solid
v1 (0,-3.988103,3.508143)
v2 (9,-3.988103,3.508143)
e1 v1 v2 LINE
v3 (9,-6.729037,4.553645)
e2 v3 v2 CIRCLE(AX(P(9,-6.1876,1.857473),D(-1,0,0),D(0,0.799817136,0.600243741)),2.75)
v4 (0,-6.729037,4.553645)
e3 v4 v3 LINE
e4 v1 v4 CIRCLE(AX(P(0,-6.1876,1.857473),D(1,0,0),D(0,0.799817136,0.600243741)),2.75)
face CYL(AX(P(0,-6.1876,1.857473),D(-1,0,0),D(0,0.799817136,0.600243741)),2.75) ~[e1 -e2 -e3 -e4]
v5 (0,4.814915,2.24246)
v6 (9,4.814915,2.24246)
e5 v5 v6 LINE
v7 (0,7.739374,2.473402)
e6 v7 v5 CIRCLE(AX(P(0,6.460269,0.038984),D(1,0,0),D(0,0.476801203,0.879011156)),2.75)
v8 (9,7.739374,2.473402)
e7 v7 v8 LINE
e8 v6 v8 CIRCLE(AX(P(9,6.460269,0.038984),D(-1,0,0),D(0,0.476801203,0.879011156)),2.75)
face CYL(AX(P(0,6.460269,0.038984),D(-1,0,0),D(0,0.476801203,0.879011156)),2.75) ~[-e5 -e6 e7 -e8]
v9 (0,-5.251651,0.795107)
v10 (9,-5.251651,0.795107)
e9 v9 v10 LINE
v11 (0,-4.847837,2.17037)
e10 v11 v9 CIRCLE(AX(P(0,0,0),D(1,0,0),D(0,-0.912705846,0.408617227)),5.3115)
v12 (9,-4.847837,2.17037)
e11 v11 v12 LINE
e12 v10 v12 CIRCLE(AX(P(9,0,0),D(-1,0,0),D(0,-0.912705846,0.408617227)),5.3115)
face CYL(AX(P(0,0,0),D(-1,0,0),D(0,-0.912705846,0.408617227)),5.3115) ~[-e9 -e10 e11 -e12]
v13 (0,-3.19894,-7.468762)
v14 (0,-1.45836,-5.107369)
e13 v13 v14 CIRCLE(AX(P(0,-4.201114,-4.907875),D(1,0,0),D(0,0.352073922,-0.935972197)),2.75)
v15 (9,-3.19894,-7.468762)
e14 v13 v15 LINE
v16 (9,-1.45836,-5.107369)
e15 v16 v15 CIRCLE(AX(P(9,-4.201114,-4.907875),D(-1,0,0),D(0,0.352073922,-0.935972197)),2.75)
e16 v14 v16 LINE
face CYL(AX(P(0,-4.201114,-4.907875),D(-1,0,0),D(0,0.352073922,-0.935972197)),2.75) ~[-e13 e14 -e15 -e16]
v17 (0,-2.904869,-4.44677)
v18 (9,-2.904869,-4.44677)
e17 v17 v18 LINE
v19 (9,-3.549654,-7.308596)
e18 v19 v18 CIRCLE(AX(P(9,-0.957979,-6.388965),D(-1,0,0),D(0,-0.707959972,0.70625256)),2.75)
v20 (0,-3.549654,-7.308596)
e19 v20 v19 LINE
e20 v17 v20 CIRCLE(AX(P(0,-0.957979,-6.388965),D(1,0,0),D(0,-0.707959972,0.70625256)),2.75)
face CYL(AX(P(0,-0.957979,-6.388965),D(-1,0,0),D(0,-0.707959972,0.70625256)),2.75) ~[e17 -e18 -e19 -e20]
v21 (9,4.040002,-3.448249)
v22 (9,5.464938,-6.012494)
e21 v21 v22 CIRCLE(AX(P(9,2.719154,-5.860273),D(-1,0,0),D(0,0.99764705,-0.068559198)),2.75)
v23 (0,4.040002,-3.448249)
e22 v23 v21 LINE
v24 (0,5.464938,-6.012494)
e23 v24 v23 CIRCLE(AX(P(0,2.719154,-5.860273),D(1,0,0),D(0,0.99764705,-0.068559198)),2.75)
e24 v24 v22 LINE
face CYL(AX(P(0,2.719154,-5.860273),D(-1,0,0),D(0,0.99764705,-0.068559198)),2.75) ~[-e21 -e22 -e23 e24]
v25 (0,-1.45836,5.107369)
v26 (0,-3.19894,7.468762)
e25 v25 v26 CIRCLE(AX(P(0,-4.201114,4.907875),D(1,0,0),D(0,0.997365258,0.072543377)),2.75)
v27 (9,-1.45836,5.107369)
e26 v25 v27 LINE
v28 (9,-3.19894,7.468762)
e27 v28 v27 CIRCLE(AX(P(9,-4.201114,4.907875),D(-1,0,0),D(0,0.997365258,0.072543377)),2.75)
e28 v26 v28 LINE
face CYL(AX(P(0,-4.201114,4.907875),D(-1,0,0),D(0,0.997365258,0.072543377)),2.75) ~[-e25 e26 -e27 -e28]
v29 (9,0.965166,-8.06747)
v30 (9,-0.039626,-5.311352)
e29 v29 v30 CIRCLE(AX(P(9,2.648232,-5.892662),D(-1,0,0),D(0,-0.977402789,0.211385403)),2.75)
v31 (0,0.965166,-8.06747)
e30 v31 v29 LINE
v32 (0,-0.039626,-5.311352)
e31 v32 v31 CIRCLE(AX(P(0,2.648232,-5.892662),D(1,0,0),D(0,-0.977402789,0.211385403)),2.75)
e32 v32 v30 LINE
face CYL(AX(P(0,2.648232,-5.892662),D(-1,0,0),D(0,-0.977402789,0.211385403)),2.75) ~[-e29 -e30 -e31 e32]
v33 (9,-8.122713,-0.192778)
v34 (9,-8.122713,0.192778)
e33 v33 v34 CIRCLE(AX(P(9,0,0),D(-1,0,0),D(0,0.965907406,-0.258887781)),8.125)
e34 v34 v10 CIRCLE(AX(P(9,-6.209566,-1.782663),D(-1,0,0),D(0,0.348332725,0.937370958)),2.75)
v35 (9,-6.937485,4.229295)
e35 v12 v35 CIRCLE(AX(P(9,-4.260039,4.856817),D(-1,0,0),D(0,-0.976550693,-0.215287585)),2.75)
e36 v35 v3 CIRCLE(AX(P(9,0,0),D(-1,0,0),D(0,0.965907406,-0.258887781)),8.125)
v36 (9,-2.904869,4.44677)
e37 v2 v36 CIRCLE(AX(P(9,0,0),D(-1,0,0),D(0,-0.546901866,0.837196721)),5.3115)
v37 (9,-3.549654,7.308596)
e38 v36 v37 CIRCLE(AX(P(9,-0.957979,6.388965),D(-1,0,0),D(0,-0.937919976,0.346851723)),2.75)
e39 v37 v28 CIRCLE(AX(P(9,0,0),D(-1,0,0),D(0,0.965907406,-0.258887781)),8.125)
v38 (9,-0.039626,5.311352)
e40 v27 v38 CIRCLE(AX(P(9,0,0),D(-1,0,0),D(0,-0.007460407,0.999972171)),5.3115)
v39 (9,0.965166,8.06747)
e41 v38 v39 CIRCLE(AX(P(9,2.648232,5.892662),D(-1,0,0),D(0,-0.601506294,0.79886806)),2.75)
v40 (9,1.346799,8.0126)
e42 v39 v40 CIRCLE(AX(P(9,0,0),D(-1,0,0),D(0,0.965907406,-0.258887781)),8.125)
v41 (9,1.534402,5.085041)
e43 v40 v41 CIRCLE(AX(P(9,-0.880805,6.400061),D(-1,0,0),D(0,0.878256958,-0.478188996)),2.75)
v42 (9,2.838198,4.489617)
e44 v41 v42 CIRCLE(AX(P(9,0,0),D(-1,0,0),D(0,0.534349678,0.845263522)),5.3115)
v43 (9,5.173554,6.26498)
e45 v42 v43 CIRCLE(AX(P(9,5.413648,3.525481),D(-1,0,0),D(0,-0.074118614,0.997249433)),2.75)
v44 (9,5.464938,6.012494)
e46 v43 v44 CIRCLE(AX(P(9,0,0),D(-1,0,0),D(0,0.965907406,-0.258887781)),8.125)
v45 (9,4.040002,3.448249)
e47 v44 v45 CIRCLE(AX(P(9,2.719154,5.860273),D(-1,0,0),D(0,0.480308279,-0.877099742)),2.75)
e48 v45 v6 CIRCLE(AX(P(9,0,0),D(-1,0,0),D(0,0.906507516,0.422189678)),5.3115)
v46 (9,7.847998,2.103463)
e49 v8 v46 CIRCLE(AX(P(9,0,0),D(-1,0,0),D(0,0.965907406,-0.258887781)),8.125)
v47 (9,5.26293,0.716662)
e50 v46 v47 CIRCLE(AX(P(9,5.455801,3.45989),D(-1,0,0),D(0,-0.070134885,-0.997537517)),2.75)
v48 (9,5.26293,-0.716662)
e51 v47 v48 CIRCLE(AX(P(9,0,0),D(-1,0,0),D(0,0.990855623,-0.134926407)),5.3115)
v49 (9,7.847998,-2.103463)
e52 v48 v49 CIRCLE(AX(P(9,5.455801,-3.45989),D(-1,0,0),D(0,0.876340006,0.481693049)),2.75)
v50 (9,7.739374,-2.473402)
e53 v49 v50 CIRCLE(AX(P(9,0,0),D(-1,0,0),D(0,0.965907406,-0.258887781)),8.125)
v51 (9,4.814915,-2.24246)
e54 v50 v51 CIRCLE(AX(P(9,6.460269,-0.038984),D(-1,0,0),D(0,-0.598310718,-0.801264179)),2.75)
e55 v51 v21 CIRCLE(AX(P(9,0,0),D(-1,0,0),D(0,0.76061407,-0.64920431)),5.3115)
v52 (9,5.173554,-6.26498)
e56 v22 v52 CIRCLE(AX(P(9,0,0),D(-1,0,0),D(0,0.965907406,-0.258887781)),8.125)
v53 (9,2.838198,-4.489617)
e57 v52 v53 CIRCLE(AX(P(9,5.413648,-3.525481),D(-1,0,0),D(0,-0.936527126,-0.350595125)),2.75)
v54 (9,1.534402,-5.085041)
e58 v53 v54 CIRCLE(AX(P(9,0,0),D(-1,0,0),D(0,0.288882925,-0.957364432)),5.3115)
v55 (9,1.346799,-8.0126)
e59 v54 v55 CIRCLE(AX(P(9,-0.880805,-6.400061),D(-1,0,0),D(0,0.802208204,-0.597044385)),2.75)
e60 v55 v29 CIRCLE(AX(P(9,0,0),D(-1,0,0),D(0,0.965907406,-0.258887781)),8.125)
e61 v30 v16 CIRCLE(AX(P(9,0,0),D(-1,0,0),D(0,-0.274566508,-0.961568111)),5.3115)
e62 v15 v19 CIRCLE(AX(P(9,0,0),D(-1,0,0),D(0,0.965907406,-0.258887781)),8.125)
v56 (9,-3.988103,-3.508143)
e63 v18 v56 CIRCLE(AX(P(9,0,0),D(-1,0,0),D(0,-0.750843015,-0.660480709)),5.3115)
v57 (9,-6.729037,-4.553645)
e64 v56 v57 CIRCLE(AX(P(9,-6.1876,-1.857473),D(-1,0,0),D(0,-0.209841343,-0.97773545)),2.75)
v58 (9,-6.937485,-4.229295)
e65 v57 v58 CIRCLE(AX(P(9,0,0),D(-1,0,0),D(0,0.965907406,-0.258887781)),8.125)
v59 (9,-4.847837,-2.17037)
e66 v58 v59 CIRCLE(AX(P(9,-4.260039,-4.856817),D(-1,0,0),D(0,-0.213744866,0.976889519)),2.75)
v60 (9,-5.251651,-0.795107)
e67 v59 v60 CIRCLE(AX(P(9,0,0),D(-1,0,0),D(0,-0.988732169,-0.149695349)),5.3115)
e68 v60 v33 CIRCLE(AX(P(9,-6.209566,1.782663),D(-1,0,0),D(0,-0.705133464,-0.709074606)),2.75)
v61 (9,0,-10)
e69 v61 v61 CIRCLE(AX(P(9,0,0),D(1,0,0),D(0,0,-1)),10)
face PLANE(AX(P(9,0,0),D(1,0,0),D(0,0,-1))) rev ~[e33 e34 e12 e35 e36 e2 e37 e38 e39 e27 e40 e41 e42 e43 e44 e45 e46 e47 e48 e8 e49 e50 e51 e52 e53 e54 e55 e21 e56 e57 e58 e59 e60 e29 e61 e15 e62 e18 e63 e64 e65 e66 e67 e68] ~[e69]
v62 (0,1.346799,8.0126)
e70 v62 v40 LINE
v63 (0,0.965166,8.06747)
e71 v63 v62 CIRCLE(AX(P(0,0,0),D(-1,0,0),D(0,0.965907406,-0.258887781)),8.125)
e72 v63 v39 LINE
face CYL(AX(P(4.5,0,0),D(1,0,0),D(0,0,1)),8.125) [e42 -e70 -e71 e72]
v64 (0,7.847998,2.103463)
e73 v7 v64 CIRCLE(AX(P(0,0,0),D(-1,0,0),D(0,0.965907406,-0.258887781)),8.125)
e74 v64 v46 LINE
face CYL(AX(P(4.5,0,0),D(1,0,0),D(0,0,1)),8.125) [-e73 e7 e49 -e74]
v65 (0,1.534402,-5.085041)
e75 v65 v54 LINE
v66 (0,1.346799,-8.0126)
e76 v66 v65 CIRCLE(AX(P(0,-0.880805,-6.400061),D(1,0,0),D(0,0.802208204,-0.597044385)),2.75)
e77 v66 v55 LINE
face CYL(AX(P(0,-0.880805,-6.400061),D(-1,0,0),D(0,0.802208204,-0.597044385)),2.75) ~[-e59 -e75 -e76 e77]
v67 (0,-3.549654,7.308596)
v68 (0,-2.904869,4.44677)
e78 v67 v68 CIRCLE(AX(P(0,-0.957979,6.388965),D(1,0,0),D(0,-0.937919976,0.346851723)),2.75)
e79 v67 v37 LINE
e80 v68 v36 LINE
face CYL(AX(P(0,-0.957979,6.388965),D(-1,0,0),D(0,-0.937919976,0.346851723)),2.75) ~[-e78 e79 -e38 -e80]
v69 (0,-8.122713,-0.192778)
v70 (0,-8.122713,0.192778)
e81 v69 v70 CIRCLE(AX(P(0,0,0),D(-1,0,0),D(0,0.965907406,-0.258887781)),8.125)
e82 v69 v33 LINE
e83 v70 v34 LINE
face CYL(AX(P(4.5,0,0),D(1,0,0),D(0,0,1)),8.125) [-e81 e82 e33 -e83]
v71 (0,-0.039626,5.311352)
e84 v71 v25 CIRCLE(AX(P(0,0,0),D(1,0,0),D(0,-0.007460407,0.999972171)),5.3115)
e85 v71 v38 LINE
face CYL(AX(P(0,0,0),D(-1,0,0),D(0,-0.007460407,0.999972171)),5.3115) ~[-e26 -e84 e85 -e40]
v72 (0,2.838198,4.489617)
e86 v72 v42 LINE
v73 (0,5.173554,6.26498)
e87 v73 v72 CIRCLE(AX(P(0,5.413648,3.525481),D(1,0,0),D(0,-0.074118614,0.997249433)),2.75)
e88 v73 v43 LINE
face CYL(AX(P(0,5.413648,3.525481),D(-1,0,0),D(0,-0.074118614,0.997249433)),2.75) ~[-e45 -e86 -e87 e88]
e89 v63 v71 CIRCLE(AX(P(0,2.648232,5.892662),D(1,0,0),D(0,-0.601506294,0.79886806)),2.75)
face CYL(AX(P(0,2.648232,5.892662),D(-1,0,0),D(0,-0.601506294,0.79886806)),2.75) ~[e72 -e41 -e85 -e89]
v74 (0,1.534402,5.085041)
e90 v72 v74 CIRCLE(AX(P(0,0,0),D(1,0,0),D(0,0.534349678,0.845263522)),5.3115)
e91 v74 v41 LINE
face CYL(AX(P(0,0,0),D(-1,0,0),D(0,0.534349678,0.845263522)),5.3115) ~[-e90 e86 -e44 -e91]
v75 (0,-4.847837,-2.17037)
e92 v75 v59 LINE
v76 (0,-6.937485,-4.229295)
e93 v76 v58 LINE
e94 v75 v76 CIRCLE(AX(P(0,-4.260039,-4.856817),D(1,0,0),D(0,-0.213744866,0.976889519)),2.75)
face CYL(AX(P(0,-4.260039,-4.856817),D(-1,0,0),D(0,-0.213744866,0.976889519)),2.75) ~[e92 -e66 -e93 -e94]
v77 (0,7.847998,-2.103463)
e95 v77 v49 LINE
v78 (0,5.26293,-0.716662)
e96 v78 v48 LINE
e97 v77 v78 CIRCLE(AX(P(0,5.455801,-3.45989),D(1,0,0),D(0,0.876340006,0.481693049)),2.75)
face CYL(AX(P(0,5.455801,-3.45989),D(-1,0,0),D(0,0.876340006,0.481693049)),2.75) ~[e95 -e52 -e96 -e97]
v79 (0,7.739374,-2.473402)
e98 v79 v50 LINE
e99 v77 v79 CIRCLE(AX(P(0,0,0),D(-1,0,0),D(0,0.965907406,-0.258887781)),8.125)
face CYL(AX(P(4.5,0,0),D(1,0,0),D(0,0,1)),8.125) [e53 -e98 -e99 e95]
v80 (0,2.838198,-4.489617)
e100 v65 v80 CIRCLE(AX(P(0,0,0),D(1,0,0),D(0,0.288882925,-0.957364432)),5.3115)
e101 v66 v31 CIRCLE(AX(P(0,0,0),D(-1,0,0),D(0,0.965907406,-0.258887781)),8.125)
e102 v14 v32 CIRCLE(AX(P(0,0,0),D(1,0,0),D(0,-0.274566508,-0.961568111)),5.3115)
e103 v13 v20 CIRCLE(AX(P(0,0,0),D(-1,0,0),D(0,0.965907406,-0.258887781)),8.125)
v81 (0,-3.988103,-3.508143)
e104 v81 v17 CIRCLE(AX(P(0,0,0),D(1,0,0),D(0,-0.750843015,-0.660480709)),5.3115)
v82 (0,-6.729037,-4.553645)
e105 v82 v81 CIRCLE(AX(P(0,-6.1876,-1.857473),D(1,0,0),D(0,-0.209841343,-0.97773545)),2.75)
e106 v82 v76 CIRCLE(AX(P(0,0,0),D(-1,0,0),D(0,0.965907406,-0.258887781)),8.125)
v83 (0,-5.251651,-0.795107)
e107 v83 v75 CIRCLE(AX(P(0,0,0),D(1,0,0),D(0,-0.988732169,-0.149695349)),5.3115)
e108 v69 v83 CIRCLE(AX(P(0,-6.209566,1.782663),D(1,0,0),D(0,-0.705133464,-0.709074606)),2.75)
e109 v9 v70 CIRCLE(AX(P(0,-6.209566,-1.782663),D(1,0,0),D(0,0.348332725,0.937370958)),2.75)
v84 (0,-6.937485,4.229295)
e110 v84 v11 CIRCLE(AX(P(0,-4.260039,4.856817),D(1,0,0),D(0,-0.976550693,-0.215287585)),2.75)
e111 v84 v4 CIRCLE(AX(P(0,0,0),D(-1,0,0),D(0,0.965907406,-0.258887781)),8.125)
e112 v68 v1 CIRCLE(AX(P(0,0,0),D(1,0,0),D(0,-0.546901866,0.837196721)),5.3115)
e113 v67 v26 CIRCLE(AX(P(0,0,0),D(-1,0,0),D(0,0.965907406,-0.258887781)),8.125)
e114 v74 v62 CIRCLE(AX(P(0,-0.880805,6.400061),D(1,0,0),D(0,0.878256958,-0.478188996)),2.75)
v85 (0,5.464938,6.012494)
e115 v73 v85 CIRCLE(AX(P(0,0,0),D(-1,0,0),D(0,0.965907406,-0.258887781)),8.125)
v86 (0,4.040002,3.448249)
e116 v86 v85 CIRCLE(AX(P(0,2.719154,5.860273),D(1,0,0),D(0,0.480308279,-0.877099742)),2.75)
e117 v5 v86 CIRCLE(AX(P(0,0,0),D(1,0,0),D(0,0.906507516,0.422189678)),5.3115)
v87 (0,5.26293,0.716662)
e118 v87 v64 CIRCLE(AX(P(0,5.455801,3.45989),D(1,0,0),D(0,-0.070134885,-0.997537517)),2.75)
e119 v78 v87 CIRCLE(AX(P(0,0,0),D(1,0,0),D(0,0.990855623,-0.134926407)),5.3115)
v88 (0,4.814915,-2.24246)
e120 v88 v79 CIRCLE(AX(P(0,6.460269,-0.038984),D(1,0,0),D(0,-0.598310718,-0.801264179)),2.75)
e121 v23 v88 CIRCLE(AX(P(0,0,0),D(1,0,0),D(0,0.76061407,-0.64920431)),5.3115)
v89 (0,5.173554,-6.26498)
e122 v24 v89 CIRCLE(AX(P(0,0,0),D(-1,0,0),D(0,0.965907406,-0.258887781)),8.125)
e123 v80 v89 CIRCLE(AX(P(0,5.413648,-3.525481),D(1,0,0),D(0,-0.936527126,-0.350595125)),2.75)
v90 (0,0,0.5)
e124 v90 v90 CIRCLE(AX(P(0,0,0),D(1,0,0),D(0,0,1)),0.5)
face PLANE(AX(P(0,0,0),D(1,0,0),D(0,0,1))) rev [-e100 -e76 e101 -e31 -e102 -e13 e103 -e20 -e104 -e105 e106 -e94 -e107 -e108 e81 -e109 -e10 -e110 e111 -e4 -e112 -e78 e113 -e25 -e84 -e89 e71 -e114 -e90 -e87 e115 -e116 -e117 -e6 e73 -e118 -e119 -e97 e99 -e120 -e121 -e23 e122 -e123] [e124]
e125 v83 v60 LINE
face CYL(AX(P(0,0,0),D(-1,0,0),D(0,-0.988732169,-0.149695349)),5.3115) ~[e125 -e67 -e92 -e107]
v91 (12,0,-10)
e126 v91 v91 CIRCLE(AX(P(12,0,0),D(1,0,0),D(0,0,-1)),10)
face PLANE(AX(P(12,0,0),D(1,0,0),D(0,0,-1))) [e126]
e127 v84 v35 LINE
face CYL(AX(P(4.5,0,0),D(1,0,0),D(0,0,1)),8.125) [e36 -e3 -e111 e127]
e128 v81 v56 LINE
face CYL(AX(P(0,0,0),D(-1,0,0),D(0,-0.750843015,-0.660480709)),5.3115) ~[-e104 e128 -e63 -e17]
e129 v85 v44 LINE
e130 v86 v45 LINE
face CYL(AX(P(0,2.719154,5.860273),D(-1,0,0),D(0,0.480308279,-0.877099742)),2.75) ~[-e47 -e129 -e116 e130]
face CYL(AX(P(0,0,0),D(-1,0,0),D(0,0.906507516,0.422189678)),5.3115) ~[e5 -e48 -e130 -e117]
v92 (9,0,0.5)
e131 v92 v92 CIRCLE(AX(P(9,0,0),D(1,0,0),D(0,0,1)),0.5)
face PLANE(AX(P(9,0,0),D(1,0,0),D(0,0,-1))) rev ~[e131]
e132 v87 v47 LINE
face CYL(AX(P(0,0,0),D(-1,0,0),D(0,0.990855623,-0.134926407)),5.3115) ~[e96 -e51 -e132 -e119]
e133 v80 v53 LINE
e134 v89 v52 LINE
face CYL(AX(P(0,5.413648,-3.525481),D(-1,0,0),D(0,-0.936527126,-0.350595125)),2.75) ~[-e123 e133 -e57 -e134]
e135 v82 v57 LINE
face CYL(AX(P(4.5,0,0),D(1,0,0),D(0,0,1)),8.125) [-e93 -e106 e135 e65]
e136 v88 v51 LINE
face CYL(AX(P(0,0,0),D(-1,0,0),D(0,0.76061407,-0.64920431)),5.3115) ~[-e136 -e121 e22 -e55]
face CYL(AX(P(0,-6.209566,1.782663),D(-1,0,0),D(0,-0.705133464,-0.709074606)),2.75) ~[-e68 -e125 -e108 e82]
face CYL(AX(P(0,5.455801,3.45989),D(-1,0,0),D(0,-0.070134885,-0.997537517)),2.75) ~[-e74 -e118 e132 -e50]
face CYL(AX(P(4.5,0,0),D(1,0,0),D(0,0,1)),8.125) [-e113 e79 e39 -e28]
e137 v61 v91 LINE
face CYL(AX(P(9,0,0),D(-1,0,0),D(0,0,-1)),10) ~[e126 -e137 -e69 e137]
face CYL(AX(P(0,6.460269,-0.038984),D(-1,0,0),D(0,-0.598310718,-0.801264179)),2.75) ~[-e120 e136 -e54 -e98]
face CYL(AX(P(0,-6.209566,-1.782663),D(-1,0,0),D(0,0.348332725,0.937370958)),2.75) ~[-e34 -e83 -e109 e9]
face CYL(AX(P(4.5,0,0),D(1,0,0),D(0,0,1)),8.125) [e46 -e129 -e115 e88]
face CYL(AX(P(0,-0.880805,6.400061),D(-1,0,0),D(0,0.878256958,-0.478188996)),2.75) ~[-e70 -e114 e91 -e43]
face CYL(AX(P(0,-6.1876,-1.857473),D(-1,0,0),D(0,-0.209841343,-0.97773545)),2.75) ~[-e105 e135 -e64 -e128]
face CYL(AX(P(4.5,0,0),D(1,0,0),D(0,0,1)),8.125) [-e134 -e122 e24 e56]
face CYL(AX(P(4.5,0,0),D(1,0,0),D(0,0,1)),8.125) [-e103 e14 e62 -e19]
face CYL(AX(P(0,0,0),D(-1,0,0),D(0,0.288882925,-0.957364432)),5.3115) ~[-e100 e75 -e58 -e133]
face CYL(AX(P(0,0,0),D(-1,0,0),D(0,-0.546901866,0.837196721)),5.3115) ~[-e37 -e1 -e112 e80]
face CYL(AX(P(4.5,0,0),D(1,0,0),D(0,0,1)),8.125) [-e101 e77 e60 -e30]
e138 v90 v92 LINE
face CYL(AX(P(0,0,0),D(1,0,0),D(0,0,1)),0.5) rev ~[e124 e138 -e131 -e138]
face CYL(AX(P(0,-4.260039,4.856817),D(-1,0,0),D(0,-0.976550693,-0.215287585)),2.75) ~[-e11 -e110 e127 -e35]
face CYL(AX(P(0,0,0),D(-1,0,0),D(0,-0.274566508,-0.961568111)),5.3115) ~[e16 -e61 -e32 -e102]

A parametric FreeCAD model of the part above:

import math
import FreeCAD as App
import Part
import Sketcher

doc = App.newDocument("Part")
body = doc.addObject("PartDesign::Body", "Body")

# Sketch on XZ plane
sketch1 = body.newObject("Sketcher::SketchObject", "Sketch")
sketch1.AttachmentSupport = (doc.getObject("XZ_Plane"), [""])
sketch1.MapMode = "FlatFace"
sketch1.addGeometry([
    Part.LineSegment(App.Vector(0, -8, 0), App.Vector(0, 0, 0)),
    Part.LineSegment(App.Vector(0, 0, 0), App.Vector(9, 0, 0)),
    Part.LineSegment(App.Vector(9, 0, 0), App.Vector(9, -8, 0)),
    Part.LineSegment(App.Vector(9, -8, 0), App.Vector(0, -8, 0)),
], False)
sketch1.addConstraint([
    Sketcher.Constraint("Coincident", 0, 2, 1, 1),
    Sketcher.Constraint("Coincident", 1, 2, 2, 1),
    Sketcher.Constraint("Coincident", 2, 2, 3, 1),
    Sketcher.Constraint("Coincident", 3, 2, 0, 1),
    Sketcher.Constraint("Vertical", 0),
    Sketcher.Constraint("Horizontal", 1),
    Sketcher.Constraint("Vertical", 2),
    Sketcher.Constraint("Horizontal", 3),
    Sketcher.Constraint("Coincident", 0, 2, -1, 1),
    Sketcher.Constraint("DistanceX", 1, 1, 1, 2, 9.0),
    Sketcher.Constraint("DistanceY", 0, 1, 0, 2, 8.125),
])
revolution = body.newObject("PartDesign::Revolution", "Revolution")
revolution.Profile = sketch1
revolution.ReferenceAxis = (sketch1, ["H_Axis"])
revolution.Angle = 360

# Sketch on YZ plane
sketch2 = body.newObject("Sketcher::SketchObject", "Sketch001")
sketch2.AttachmentSupport = (doc.getObject("YZ_Plane"), [""])
sketch2.MapMode = "FlatFace"
sketch2.addGeometry([
    Part.ArcOfCircle(Part.Circle(App.Vector(0, 0, 0), App.Vector(0, 0, 1), 5.3), math.radians(-7.75), math.radians(7.75)),
    Part.ArcOfCircle(Part.Circle(App.Vector(5.5, -3.5, 0), App.Vector(0, 0, 1), 2.7), math.radians(29), math.radians(94)),
    Part.ArcOfCircle(Part.Circle(App.Vector(0, 0, 0), App.Vector(0, 0, 1), 8.2), math.radians(-15), math.radians(15)),
    Part.ArcOfCircle(Part.Circle(App.Vector(5.5, 3.5, 0), App.Vector(0, 0, 1), 2.7), math.radians(-94), math.radians(-29)),
], False)
sketch2.addConstraint([
    Sketcher.Constraint("Coincident", 0, 1, 1, 2),
    Sketcher.Constraint("Coincident", 1, 1, 2, 1),
    Sketcher.Constraint("Coincident", 2, 2, 3, 2),
    Sketcher.Constraint("Coincident", 3, 1, 0, 2),
    Sketcher.Constraint("Coincident", 0, 3, -1, 1),
    Sketcher.Constraint("Coincident", 2, 3, -1, 1),
    Sketcher.Constraint("Equal", 1, 3),
    Sketcher.Constraint("Symmetric", 1, 3, 3, 3, -1),
    Sketcher.Constraint("Radius", 1, 2.75),
    Sketcher.Constraint("Radius", 0, 5.3115),
    Sketcher.Constraint("Radius", 2, 8.1504),
    Sketcher.Constraint("DistanceX", -1, 1, 1, 3, 5.455801),
    Sketcher.Constraint("DistanceY", 1, 3, -1, 1, 3.45989),
])
pocket1 = body.newObject("PartDesign::Pocket", "Pocket")
pocket1.Profile = sketch2
pocket1.Type = "ThroughAll"
pocket1.Reversed = True
doc.recompute()

polarpattern = body.newObject("PartDesign::PolarPattern", "PolarPattern")
polarpattern.Originals = [pocket1]
polarpattern.Axis = (doc.getObject("X_Axis"), [""])
polarpattern.Angle = 360
polarpattern.Occurrences = 11
body.Tip = polarpattern

# Sketch on YZ plane
sketch3 = body.newObject("Sketcher::SketchObject", "Sketch002")
sketch3.AttachmentSupport = (doc.getObject("YZ_Plane"), [""])
sketch3.MapMode = "FlatFace"
sketch3.addGeometry(Part.Circle(App.Vector(0, 0, 0), App.Vector(0, 0, 1), 0.5), False)
sketch3.addConstraint([
    Sketcher.Constraint("Coincident", 0, 3, -1, 1),
    Sketcher.Constraint("Diameter", 0, 1.0),
])
pocket2 = body.newObject("PartDesign::Pocket", "Pocket001")
pocket2.Profile = sketch3
pocket2.Length = 100.000102
pocket2.Midplane = True

# Sketch on YZ plane
sketch4 = body.newObject("Sketcher::SketchObject", "Sketch003")
sketch4.AttachmentSupport = (doc.getObject("YZ_Plane"), [""])
sketch4.MapMode = "FlatFace"
sketch4.AttachmentOffset = App.Placement(App.Vector(0, 0, 9), App.Rotation())
sketch4.addGeometry(Part.Circle(App.Vector(0, 0, 0), App.Vector(0, 0, 1), 10), False)
sketch4.addConstraint([
    Sketcher.Constraint("Coincident", 0, 3, -1, 1),
    Sketcher.Constraint("Diameter", 0, 20.0),
])
pad1 = body.newObject("PartDesign::Pad", "Pad")
pad1.Profile = sketch4
pad1.Length = 3

doc.recompute()
